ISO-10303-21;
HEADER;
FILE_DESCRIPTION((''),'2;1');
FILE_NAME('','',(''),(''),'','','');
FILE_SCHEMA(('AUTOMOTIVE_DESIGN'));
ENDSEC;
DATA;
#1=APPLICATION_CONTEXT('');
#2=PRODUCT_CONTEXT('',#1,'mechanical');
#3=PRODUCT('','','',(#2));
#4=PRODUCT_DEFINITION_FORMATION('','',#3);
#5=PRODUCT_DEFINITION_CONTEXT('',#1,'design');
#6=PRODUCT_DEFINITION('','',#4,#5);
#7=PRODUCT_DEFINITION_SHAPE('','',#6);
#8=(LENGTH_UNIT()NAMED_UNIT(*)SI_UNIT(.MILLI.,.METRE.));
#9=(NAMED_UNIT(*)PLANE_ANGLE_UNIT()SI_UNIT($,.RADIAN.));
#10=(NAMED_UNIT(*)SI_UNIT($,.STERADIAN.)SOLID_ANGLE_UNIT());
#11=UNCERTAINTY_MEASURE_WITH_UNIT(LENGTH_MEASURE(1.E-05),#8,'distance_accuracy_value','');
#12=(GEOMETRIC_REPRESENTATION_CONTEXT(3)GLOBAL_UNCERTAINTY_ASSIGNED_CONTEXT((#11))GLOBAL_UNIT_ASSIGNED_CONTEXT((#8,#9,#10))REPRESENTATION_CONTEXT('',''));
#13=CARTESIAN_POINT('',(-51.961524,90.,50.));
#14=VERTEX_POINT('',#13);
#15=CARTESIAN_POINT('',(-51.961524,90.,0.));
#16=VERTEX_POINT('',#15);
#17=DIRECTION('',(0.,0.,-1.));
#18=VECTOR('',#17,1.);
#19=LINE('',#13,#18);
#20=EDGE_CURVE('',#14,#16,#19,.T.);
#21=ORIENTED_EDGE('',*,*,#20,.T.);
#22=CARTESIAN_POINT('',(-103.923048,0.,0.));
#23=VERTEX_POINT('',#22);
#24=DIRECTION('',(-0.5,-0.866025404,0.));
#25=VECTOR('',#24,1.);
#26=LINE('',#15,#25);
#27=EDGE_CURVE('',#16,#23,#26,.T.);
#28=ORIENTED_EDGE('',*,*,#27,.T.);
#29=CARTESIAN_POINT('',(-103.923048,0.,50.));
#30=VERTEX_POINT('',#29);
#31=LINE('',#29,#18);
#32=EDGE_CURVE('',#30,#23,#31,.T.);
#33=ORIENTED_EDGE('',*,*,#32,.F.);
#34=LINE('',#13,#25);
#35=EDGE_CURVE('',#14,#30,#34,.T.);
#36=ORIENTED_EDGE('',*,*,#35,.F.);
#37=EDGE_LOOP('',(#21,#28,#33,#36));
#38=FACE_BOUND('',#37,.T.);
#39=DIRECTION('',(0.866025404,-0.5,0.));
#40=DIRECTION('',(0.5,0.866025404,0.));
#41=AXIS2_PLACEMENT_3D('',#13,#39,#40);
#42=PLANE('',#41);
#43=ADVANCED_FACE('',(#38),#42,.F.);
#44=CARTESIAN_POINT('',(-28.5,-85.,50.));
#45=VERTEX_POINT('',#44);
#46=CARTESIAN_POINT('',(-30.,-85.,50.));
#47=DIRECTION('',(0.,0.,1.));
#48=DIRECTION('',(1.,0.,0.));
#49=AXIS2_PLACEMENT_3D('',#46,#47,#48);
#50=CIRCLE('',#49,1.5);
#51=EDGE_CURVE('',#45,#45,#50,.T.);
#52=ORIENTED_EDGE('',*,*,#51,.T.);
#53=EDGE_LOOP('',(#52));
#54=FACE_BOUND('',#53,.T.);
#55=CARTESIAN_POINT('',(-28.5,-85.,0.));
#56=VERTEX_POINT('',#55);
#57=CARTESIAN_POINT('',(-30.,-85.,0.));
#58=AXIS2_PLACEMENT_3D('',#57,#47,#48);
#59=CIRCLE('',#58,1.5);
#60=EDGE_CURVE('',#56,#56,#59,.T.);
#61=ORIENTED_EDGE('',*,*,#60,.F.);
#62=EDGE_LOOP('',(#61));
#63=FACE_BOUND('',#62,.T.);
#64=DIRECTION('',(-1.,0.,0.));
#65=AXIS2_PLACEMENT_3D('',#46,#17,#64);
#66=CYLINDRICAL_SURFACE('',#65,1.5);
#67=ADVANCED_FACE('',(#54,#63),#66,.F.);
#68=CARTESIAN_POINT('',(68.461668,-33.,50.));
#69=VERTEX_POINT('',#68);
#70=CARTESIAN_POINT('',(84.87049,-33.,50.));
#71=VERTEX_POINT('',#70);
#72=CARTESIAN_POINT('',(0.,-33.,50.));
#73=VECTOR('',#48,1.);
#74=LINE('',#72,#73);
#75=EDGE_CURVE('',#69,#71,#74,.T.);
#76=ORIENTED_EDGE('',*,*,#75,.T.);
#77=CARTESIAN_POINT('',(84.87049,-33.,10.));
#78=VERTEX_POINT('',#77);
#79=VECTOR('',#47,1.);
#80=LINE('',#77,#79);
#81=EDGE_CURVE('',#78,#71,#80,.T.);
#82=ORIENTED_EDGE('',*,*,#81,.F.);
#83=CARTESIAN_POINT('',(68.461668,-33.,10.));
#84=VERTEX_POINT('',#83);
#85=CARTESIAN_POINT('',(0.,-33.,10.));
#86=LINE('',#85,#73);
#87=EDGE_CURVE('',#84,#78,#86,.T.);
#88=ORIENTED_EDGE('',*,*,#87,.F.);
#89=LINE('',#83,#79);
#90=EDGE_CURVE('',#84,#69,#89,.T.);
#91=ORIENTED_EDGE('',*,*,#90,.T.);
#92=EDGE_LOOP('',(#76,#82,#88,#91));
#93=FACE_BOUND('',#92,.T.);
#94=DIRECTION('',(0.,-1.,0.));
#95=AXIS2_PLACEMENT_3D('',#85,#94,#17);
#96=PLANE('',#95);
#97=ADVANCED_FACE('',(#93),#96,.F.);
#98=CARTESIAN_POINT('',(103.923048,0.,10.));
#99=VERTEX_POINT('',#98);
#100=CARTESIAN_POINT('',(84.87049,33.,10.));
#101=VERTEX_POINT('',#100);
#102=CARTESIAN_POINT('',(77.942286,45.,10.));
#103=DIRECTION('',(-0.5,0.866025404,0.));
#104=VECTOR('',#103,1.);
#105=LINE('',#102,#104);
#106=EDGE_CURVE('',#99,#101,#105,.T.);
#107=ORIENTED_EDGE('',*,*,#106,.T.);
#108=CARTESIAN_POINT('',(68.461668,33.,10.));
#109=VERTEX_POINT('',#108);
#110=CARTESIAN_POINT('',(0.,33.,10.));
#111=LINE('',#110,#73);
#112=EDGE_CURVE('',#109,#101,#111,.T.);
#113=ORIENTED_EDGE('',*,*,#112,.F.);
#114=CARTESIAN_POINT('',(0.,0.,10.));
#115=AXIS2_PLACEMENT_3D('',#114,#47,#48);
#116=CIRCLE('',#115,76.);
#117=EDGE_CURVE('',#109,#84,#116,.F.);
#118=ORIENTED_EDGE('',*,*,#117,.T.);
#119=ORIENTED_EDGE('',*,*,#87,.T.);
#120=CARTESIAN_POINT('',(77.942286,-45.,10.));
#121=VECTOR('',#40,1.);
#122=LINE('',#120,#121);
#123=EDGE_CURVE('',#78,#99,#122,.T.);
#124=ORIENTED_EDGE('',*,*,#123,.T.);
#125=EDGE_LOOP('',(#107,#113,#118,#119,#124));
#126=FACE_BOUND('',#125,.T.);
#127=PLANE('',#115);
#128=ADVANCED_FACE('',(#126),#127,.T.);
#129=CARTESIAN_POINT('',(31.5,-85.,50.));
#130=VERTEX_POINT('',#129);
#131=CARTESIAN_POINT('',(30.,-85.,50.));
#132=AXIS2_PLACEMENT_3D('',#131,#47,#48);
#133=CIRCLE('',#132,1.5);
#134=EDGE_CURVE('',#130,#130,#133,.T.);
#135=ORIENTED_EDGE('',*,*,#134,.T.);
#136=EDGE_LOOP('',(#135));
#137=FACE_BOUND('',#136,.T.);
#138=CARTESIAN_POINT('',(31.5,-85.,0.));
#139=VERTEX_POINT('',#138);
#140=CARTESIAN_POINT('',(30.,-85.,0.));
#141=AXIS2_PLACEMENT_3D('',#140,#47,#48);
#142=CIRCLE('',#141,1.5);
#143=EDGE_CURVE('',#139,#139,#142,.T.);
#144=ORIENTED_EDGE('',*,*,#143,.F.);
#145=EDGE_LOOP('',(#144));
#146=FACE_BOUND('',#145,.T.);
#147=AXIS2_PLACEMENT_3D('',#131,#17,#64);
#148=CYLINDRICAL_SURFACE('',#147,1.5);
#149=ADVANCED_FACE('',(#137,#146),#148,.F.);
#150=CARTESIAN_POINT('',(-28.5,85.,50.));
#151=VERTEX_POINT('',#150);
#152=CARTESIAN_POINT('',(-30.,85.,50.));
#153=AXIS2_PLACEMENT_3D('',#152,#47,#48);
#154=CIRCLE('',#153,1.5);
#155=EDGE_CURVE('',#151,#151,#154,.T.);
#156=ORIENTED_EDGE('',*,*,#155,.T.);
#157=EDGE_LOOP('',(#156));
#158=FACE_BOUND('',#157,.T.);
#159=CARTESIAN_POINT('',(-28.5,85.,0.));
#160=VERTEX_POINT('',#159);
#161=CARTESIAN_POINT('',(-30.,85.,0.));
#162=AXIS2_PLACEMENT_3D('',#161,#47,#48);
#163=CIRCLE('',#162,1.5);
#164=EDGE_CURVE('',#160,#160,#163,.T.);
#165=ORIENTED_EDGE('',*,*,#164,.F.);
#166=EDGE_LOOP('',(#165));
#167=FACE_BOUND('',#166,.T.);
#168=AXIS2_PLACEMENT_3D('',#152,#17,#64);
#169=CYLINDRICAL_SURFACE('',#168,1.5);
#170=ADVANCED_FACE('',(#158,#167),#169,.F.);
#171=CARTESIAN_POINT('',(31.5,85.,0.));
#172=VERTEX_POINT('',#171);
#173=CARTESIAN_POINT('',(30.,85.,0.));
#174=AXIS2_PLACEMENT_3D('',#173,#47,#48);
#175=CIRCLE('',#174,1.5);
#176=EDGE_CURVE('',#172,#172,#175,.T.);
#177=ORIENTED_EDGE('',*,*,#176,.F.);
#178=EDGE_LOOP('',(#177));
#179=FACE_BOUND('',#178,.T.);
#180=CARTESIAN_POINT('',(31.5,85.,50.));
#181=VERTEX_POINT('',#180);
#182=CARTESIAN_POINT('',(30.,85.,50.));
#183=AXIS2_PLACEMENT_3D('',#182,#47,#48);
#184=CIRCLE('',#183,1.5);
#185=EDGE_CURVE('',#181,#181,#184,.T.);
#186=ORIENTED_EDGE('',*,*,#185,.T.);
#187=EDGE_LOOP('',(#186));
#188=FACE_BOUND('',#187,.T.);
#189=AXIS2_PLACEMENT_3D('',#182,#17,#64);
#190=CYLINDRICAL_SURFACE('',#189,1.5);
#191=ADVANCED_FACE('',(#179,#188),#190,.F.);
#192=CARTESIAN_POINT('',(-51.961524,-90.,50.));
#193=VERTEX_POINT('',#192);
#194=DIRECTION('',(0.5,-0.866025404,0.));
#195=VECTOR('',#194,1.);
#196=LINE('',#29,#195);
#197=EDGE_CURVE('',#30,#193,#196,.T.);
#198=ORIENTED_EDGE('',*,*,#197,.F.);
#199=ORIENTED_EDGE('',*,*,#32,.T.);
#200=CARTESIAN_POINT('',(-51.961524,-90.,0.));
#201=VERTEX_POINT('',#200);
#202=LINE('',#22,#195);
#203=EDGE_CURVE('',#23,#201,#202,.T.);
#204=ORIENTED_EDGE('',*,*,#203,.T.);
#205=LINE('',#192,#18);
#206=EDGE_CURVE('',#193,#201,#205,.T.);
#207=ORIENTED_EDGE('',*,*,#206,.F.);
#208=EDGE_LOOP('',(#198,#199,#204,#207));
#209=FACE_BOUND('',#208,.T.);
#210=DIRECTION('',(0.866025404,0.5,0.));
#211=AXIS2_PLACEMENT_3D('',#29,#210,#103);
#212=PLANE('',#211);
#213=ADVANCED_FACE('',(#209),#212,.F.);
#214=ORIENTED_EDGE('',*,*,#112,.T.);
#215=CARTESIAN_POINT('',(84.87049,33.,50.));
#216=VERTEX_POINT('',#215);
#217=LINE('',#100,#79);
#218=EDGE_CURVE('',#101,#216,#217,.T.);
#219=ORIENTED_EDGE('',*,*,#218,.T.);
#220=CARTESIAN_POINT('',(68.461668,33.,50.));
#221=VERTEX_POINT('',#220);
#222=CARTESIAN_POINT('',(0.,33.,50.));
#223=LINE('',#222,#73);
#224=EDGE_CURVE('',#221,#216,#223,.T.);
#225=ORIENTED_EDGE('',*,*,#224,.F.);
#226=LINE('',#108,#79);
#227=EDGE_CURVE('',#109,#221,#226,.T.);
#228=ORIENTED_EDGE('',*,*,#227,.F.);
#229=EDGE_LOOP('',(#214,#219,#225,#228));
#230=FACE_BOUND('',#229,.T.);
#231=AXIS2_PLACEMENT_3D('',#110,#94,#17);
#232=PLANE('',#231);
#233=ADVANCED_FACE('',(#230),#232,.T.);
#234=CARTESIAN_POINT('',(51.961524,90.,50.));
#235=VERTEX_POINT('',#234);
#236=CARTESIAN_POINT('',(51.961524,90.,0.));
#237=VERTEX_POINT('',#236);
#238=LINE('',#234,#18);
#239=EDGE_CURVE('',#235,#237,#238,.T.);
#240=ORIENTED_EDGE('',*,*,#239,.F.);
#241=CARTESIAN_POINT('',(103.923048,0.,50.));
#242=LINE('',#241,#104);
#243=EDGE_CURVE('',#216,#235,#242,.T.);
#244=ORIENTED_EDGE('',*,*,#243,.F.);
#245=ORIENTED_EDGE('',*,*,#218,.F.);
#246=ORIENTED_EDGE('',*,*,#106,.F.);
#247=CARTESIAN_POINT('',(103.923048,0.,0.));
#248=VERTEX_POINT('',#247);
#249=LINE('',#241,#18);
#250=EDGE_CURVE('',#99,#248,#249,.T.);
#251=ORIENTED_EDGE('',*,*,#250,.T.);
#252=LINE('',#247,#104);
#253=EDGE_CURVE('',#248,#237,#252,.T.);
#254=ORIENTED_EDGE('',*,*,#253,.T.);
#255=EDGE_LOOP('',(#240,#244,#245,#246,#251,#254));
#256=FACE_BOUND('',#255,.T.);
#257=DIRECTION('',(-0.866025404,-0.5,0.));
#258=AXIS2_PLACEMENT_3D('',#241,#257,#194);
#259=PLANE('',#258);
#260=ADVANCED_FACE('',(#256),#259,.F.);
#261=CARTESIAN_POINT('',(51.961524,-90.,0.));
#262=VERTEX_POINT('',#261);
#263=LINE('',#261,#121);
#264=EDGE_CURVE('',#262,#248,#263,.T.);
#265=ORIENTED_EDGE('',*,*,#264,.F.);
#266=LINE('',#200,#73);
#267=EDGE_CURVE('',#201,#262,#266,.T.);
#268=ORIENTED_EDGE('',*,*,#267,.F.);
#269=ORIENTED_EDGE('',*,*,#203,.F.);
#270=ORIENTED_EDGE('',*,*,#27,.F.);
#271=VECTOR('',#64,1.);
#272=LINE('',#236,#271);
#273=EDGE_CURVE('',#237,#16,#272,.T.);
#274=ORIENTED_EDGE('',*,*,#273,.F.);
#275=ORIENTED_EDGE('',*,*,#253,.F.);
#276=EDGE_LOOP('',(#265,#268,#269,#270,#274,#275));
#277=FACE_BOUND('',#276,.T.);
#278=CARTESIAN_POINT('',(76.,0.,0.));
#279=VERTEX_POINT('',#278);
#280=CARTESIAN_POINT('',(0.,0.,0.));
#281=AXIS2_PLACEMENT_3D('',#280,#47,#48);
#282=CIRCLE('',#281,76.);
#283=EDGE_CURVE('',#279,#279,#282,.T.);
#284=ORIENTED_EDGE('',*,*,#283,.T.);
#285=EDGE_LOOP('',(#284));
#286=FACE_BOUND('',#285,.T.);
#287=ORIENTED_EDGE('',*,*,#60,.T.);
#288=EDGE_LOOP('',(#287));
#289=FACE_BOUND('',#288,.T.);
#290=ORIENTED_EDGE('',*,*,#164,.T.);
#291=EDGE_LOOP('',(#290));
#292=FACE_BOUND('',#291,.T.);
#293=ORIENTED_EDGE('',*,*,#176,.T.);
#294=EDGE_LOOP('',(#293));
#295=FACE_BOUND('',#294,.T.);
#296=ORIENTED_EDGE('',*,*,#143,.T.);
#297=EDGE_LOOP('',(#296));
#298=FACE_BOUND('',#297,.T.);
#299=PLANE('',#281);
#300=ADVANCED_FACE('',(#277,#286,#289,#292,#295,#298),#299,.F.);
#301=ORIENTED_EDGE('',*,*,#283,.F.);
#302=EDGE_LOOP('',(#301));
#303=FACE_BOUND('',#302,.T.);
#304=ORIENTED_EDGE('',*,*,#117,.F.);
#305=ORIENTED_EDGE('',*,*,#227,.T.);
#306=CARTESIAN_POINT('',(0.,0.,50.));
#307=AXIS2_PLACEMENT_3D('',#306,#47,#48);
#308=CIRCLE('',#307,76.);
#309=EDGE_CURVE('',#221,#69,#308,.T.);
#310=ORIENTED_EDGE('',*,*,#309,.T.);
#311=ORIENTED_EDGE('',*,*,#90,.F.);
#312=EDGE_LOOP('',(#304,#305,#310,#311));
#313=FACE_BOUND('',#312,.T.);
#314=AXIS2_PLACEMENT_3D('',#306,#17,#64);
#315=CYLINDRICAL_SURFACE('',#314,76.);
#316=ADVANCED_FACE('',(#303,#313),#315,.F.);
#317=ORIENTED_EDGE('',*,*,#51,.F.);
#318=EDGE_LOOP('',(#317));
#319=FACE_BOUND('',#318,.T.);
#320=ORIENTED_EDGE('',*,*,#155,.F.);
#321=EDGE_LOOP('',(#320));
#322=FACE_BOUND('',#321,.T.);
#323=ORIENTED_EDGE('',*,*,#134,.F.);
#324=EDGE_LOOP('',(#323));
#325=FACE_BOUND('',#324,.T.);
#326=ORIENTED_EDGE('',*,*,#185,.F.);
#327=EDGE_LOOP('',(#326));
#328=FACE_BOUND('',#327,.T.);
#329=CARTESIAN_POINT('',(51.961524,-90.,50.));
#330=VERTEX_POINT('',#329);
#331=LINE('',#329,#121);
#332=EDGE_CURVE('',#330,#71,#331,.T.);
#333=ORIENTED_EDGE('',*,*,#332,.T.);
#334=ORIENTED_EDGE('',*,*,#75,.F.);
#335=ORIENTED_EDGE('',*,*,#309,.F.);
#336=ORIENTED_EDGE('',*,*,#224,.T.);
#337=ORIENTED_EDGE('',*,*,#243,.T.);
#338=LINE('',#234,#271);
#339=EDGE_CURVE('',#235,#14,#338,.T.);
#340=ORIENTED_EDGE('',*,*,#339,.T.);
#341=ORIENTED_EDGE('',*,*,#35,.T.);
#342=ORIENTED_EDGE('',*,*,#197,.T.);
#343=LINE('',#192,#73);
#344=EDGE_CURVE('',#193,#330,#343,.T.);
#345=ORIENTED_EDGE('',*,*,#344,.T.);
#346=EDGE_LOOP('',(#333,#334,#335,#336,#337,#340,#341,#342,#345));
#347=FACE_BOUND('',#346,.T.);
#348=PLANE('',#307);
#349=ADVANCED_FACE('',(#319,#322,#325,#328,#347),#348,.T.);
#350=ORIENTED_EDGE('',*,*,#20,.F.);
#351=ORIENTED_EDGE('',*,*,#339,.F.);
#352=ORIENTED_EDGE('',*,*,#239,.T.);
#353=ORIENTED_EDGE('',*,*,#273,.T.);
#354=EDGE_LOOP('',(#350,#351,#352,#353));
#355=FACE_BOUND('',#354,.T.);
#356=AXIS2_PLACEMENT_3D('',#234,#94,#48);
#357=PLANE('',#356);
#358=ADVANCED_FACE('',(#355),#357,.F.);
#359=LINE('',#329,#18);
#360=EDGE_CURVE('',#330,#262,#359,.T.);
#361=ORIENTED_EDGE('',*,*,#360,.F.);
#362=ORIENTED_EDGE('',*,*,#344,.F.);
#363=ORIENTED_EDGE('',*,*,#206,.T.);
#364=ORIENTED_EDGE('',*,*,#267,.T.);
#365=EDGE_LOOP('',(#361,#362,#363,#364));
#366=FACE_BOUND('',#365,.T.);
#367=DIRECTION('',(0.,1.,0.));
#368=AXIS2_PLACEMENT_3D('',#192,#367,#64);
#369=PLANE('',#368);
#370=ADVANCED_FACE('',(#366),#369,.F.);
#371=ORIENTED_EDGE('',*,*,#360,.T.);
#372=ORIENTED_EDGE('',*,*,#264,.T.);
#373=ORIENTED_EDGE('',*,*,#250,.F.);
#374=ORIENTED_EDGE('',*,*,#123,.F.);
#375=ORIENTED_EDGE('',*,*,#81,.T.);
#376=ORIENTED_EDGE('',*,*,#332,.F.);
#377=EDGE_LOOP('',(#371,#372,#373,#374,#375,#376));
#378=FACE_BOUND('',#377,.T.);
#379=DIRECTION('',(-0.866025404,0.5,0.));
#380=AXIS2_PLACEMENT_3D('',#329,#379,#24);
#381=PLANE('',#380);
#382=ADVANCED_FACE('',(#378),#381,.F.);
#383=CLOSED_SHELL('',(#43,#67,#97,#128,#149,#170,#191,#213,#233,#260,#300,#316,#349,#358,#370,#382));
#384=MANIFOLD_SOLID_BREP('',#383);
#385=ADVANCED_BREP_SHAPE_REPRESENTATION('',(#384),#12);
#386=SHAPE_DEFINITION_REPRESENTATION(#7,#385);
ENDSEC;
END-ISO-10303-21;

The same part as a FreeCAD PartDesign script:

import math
import FreeCAD as App
import Part
import Sketcher

V = App.Vector
Q = App.Units.Quantity


def add_polygon(sketch, points):
    """Adds a closed chain of lines whose ends are joined by coincident constraints."""
    first, n = sketch.GeometryCount, len(points)
    for a, b in zip(points, points[1:] + points[:1]):
        sketch.addGeometry(Part.LineSegment(App.Vector(*a, 0), App.Vector(*b, 0)), False)
    for i in range(n):
        sketch.addConstraint(Sketcher.Constraint("Coincident", first + i, 2, first + (i + 1) % n, 1))

doc = App.newDocument("Part")
body = doc.addObject("PartDesign::Body", "Body")

# Sketch on XY plane
sketch1 = body.newObject("Sketcher::SketchObject", "Sketch")
sketch1.AttachmentSupport = (doc.getObject("XY_Plane"), [""])
sketch1.MapMode = "FlatFace"
add_polygon(sketch1, [(103.9, 0), (52, 90), (-52, 90), (-103.9, 0), (-52, -90), (52, -90)])  # lines 0-5
sketch1.addGeometry(Part.Circle(V(-30, -85, 0), V(0, 0, 1), 1.5), False)  # 6
sketch1.addGeometry(Part.Circle(V(30, -85, 0), V(0, 0, 1), 1.5), False)  # 7
sketch1.addGeometry(Part.Circle(V(-30, 85, 0), V(0, 0, 1), 1.5), False)  # 8
sketch1.addGeometry(Part.Circle(V(0, 0, 0), V(0, 0, 1), 76), False)  # 9
sketch1.addGeometry(Part.Circle(V(30, 85, 0), V(0, 0, 1), 1.5), False)  # 10
sketch1.addConstraint([
    Sketcher.Constraint("Horizontal", 1),
    Sketcher.Constraint("Horizontal", 4),
    Sketcher.Constraint("Coincident", 9, 3, -1, 1),
    Sketcher.Constraint("Equal", 6, 7),
    Sketcher.Constraint("Equal", 7, 8),
    Sketcher.Constraint("Equal", 8, 10),
    Sketcher.Constraint("Symmetric", 7, 3, 8, 3, -1, 1),
    Sketcher.Constraint("Symmetric", 6, 3, 10, 3, -1, 1),
    Sketcher.Constraint("Symmetric", 0, 2, 3, 2, -1, 1),
    Sketcher.Constraint("Symmetric", 2, 2, 5, 2, -1, 1),
    Sketcher.Constraint("Symmetric", 6, 3, 7, 3, -2),
    Sketcher.Constraint("PointOnObject", 2, 2, -1),
    Sketcher.Constraint("Parallel", 2, 5),
    Sketcher.Constraint("Vertical", 1, 2, 3, 2),
    Sketcher.Constraint("Diameter", 6, Q("3 mm")),
    Sketcher.Constraint("Diameter", 9, Q("152 mm")),
    Sketcher.Constraint("Angle", 0, Q("120 deg")),
    Sketcher.Constraint("DistanceX", 6, 3, -1, 1, Q("30 mm")),
    Sketcher.Constraint("DistanceY", 6, 3, -1, 1, Q("85 mm")),
    Sketcher.Constraint("DistanceY", -1, 1, 0, 2, Q("90 mm")),
    Sketcher.Constraint("DistanceX", 1, 2, 1, 1, Q("103.923048 mm")),
])
pad1 = body.newObject("PartDesign::Pad", "Pad")
pad1.Profile = sketch1
pad1.Length = 50

# Sketch on XY plane
sketch2 = body.newObject("Sketcher::SketchObject", "Sketch001")
sketch2.AttachmentSupport = (doc.getObject("XY_Plane"), [""])
sketch2.MapMode = "FlatFace"
sketch2.AttachmentOffset = App.Placement(V(0, 0, 10), App.Rotation())
sketch2.addGeometry([
    Part.ArcOfCircle(Part.Circle(V(0, 0, 0), V(0, 0, 1), 76), math.radians(0), math.radians(26)),  # 0
    Part.ArcOfCircle(Part.Circle(V(0, 0, 0), V(0, 0, 1), 76), math.radians(-26), math.radians(0)),  # 1
    Part.LineSegment(V(68, -33, 0), V(85, -33, 0)),  # 2
    Part.LineSegment(V(85, -33, 0), V(104, 0, 0)),  # 3
    Part.LineSegment(V(104, 0, 0), V(85, 33, 0)),  # 4
    Part.LineSegment(V(85, 33, 0), V(68, 33, 0)),  # 5
], False)
sketch2.addConstraint([
    Sketcher.Constraint("Tangent", 0, 1, 1, 2),
    Sketcher.Constraint("Coincident", 1, 1, 2, 1),
    Sketcher.Constraint("Coincident", 2, 2, 3, 1),
    Sketcher.Constraint("Coincident", 3, 2, 4, 1),
    Sketcher.Constraint("Coincident", 4, 2, 5, 1),
    Sketcher.Constraint("Coincident", 5, 2, 0, 2),
    Sketcher.Constraint("Horizontal", 2),
    Sketcher.Constraint("Horizontal", 5),
    Sketcher.Constraint("Coincident", 0, 3, -1, 1),
    Sketcher.Constraint("Equal", 0, 1),
    Sketcher.Constraint("Symmetric", 2, 2, 4, 2, -1),
    Sketcher.Constraint("PointOnObject", 0, 1, -1),
    Sketcher.Constraint("PointOnObject", 3, 2, -1),
    Sketcher.Constraint("Radius", 0, Q("76 mm")),
    Sketcher.Constraint("Angle", 3, Q("60 deg")),
    Sketcher.Constraint("DistanceY", 1, 1, -1, 1, Q("33 mm")),
    Sketcher.Constraint("DistanceX", 2, 1, 2, 2, Q("16.408821 mm")),
])
pocket1 = body.newObject("PartDesign::Pocket", "Pocket")
pocket1.Profile = sketch2
pocket1.Length = 40
pocket1.Reversed = True

doc.recompute()
